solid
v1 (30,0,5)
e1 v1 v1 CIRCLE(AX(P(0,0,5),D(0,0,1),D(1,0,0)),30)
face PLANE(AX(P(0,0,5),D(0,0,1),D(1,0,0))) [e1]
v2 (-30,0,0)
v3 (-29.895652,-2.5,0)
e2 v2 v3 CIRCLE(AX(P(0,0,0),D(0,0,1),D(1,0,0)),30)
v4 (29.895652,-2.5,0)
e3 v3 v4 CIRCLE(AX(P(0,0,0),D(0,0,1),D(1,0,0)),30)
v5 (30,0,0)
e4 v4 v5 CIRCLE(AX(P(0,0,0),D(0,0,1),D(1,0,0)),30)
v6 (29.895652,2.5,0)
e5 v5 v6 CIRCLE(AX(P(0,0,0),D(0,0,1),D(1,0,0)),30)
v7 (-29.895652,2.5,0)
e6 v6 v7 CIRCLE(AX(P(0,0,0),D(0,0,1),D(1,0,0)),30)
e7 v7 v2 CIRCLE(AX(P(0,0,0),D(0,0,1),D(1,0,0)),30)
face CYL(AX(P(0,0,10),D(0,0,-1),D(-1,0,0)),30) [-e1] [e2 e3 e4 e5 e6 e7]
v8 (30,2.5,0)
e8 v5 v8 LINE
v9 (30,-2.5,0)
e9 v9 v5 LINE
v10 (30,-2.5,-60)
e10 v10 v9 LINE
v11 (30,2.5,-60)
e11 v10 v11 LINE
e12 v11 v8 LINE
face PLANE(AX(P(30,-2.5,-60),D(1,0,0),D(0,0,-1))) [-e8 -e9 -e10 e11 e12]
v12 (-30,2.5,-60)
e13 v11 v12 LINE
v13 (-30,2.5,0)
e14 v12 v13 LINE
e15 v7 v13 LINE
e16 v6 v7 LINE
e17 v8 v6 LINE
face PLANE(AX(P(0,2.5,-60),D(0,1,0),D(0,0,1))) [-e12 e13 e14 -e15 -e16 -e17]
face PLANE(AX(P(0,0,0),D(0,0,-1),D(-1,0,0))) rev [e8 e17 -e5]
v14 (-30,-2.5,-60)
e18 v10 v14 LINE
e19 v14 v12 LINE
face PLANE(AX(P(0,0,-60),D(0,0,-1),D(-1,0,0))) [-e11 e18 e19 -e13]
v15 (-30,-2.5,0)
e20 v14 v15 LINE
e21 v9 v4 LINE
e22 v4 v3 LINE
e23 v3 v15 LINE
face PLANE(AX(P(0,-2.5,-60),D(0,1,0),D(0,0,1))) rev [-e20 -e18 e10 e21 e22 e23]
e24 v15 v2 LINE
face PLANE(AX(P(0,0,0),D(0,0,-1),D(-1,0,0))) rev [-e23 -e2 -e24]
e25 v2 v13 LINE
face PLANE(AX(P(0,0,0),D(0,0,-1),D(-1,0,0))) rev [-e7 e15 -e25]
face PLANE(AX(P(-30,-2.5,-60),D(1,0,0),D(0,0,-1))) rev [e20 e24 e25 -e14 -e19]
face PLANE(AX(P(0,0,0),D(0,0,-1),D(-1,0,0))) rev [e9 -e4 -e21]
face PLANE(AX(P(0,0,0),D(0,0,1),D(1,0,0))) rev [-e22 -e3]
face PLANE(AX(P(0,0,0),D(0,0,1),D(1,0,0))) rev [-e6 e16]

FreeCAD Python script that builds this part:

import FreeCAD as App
import Part
import Sketcher
Q = App.Units.Quantity


def add_polygon(sketch, points):
    """Adds a closed chain of lines whose ends are joined by coincident constraints."""
    first, n = sketch.GeometryCount, len(points)
    for a, b in zip(points, points[1:] + points[:1]):
        sketch.addGeometry(Part.LineSegment(App.Vector(*a, 0), App.Vector(*b, 0)), False)
    for i in range(n):
        sketch.addConstraint(Sketcher.Constraint("Coincident", first + i, 2, first + (i + 1) % n, 1))

doc = App.newDocument("Part")
body = doc.addObject("PartDesign::Body", "Body")

sketch1 = body.newObject("Sketcher::SketchObject", "Sketch")
sketch1.AttachmentSupport = (doc.getObject("XY_Plane"), [""])
sketch1.MapMode = "FlatFace"
sketch1.addGeometry(Part.Circle(App.Vector(0, 0, 0), App.Vector(0, 0, 1), 30), False)
sketch1.addConstraint([
    Sketcher.Constraint("Coincident", 0, 3, -1, 1),
    Sketcher.Constraint("Diameter", 0, Q("60 mm")),
])
pad1 = body.newObject("PartDesign::Pad", "Pad")
pad1.Profile = sketch1
pad1.Length = 10

sketch2 = body.newObject("Sketcher::SketchObject", "Sketch001")
sketch2.AttachmentSupport = (doc.getObject("XY_Plane"), [""])
sketch2.MapMode = "FlatFace"
add_polygon(sketch2, [(30, 2.5), (30, -2.5), (-30, -2.5), (-30, 2.5)])
sketch2.addConstraint([
    Sketcher.Constraint("Vertical", 0),
    Sketcher.Constraint("Horizontal", 1),
    Sketcher.Constraint("Vertical", 2),
    Sketcher.Constraint("Horizontal", 3),
    Sketcher.Constraint("Symmetric", 0, 2, 2, 2, -1, 1),
    Sketcher.Constraint("DistanceX", 1, 2, 1, 1, Q("60 mm")),
    Sketcher.Constraint("DistanceY", 0, 2, 0, 1, Q("5 mm")),
])
pad2 = body.newObject("PartDesign::Pad", "Pad001")
pad2.Profile = sketch2
pad2.Length = 60
pad2.Reversed = True

sketch3 = body.newObject("Sketcher::SketchObject", "Sketch002")
sketch3.AttachmentSupport = (doc.getObject("XY_Plane"), [""])
sketch3.MapMode = "FlatFace"
sketch3.AttachmentOffset = App.Placement(App.Vector(0, 0, 5), App.Rotation())
sketch3.addGeometry(Part.Circle(App.Vector(0, 0, 0), App.Vector(0, 0, 1), 30), False)
sketch3.addConstraint([
    Sketcher.Constraint("Coincident", 0, 3, -1, 1),
    Sketcher.Constraint("Diameter", 0, Q("60 mm")),
])
pocket1 = body.newObject("PartDesign::Pocket", "Pocket")
pocket1.Profile = sketch3
pocket1.Length = 5
pocket1.Reversed = True

doc.recompute()
